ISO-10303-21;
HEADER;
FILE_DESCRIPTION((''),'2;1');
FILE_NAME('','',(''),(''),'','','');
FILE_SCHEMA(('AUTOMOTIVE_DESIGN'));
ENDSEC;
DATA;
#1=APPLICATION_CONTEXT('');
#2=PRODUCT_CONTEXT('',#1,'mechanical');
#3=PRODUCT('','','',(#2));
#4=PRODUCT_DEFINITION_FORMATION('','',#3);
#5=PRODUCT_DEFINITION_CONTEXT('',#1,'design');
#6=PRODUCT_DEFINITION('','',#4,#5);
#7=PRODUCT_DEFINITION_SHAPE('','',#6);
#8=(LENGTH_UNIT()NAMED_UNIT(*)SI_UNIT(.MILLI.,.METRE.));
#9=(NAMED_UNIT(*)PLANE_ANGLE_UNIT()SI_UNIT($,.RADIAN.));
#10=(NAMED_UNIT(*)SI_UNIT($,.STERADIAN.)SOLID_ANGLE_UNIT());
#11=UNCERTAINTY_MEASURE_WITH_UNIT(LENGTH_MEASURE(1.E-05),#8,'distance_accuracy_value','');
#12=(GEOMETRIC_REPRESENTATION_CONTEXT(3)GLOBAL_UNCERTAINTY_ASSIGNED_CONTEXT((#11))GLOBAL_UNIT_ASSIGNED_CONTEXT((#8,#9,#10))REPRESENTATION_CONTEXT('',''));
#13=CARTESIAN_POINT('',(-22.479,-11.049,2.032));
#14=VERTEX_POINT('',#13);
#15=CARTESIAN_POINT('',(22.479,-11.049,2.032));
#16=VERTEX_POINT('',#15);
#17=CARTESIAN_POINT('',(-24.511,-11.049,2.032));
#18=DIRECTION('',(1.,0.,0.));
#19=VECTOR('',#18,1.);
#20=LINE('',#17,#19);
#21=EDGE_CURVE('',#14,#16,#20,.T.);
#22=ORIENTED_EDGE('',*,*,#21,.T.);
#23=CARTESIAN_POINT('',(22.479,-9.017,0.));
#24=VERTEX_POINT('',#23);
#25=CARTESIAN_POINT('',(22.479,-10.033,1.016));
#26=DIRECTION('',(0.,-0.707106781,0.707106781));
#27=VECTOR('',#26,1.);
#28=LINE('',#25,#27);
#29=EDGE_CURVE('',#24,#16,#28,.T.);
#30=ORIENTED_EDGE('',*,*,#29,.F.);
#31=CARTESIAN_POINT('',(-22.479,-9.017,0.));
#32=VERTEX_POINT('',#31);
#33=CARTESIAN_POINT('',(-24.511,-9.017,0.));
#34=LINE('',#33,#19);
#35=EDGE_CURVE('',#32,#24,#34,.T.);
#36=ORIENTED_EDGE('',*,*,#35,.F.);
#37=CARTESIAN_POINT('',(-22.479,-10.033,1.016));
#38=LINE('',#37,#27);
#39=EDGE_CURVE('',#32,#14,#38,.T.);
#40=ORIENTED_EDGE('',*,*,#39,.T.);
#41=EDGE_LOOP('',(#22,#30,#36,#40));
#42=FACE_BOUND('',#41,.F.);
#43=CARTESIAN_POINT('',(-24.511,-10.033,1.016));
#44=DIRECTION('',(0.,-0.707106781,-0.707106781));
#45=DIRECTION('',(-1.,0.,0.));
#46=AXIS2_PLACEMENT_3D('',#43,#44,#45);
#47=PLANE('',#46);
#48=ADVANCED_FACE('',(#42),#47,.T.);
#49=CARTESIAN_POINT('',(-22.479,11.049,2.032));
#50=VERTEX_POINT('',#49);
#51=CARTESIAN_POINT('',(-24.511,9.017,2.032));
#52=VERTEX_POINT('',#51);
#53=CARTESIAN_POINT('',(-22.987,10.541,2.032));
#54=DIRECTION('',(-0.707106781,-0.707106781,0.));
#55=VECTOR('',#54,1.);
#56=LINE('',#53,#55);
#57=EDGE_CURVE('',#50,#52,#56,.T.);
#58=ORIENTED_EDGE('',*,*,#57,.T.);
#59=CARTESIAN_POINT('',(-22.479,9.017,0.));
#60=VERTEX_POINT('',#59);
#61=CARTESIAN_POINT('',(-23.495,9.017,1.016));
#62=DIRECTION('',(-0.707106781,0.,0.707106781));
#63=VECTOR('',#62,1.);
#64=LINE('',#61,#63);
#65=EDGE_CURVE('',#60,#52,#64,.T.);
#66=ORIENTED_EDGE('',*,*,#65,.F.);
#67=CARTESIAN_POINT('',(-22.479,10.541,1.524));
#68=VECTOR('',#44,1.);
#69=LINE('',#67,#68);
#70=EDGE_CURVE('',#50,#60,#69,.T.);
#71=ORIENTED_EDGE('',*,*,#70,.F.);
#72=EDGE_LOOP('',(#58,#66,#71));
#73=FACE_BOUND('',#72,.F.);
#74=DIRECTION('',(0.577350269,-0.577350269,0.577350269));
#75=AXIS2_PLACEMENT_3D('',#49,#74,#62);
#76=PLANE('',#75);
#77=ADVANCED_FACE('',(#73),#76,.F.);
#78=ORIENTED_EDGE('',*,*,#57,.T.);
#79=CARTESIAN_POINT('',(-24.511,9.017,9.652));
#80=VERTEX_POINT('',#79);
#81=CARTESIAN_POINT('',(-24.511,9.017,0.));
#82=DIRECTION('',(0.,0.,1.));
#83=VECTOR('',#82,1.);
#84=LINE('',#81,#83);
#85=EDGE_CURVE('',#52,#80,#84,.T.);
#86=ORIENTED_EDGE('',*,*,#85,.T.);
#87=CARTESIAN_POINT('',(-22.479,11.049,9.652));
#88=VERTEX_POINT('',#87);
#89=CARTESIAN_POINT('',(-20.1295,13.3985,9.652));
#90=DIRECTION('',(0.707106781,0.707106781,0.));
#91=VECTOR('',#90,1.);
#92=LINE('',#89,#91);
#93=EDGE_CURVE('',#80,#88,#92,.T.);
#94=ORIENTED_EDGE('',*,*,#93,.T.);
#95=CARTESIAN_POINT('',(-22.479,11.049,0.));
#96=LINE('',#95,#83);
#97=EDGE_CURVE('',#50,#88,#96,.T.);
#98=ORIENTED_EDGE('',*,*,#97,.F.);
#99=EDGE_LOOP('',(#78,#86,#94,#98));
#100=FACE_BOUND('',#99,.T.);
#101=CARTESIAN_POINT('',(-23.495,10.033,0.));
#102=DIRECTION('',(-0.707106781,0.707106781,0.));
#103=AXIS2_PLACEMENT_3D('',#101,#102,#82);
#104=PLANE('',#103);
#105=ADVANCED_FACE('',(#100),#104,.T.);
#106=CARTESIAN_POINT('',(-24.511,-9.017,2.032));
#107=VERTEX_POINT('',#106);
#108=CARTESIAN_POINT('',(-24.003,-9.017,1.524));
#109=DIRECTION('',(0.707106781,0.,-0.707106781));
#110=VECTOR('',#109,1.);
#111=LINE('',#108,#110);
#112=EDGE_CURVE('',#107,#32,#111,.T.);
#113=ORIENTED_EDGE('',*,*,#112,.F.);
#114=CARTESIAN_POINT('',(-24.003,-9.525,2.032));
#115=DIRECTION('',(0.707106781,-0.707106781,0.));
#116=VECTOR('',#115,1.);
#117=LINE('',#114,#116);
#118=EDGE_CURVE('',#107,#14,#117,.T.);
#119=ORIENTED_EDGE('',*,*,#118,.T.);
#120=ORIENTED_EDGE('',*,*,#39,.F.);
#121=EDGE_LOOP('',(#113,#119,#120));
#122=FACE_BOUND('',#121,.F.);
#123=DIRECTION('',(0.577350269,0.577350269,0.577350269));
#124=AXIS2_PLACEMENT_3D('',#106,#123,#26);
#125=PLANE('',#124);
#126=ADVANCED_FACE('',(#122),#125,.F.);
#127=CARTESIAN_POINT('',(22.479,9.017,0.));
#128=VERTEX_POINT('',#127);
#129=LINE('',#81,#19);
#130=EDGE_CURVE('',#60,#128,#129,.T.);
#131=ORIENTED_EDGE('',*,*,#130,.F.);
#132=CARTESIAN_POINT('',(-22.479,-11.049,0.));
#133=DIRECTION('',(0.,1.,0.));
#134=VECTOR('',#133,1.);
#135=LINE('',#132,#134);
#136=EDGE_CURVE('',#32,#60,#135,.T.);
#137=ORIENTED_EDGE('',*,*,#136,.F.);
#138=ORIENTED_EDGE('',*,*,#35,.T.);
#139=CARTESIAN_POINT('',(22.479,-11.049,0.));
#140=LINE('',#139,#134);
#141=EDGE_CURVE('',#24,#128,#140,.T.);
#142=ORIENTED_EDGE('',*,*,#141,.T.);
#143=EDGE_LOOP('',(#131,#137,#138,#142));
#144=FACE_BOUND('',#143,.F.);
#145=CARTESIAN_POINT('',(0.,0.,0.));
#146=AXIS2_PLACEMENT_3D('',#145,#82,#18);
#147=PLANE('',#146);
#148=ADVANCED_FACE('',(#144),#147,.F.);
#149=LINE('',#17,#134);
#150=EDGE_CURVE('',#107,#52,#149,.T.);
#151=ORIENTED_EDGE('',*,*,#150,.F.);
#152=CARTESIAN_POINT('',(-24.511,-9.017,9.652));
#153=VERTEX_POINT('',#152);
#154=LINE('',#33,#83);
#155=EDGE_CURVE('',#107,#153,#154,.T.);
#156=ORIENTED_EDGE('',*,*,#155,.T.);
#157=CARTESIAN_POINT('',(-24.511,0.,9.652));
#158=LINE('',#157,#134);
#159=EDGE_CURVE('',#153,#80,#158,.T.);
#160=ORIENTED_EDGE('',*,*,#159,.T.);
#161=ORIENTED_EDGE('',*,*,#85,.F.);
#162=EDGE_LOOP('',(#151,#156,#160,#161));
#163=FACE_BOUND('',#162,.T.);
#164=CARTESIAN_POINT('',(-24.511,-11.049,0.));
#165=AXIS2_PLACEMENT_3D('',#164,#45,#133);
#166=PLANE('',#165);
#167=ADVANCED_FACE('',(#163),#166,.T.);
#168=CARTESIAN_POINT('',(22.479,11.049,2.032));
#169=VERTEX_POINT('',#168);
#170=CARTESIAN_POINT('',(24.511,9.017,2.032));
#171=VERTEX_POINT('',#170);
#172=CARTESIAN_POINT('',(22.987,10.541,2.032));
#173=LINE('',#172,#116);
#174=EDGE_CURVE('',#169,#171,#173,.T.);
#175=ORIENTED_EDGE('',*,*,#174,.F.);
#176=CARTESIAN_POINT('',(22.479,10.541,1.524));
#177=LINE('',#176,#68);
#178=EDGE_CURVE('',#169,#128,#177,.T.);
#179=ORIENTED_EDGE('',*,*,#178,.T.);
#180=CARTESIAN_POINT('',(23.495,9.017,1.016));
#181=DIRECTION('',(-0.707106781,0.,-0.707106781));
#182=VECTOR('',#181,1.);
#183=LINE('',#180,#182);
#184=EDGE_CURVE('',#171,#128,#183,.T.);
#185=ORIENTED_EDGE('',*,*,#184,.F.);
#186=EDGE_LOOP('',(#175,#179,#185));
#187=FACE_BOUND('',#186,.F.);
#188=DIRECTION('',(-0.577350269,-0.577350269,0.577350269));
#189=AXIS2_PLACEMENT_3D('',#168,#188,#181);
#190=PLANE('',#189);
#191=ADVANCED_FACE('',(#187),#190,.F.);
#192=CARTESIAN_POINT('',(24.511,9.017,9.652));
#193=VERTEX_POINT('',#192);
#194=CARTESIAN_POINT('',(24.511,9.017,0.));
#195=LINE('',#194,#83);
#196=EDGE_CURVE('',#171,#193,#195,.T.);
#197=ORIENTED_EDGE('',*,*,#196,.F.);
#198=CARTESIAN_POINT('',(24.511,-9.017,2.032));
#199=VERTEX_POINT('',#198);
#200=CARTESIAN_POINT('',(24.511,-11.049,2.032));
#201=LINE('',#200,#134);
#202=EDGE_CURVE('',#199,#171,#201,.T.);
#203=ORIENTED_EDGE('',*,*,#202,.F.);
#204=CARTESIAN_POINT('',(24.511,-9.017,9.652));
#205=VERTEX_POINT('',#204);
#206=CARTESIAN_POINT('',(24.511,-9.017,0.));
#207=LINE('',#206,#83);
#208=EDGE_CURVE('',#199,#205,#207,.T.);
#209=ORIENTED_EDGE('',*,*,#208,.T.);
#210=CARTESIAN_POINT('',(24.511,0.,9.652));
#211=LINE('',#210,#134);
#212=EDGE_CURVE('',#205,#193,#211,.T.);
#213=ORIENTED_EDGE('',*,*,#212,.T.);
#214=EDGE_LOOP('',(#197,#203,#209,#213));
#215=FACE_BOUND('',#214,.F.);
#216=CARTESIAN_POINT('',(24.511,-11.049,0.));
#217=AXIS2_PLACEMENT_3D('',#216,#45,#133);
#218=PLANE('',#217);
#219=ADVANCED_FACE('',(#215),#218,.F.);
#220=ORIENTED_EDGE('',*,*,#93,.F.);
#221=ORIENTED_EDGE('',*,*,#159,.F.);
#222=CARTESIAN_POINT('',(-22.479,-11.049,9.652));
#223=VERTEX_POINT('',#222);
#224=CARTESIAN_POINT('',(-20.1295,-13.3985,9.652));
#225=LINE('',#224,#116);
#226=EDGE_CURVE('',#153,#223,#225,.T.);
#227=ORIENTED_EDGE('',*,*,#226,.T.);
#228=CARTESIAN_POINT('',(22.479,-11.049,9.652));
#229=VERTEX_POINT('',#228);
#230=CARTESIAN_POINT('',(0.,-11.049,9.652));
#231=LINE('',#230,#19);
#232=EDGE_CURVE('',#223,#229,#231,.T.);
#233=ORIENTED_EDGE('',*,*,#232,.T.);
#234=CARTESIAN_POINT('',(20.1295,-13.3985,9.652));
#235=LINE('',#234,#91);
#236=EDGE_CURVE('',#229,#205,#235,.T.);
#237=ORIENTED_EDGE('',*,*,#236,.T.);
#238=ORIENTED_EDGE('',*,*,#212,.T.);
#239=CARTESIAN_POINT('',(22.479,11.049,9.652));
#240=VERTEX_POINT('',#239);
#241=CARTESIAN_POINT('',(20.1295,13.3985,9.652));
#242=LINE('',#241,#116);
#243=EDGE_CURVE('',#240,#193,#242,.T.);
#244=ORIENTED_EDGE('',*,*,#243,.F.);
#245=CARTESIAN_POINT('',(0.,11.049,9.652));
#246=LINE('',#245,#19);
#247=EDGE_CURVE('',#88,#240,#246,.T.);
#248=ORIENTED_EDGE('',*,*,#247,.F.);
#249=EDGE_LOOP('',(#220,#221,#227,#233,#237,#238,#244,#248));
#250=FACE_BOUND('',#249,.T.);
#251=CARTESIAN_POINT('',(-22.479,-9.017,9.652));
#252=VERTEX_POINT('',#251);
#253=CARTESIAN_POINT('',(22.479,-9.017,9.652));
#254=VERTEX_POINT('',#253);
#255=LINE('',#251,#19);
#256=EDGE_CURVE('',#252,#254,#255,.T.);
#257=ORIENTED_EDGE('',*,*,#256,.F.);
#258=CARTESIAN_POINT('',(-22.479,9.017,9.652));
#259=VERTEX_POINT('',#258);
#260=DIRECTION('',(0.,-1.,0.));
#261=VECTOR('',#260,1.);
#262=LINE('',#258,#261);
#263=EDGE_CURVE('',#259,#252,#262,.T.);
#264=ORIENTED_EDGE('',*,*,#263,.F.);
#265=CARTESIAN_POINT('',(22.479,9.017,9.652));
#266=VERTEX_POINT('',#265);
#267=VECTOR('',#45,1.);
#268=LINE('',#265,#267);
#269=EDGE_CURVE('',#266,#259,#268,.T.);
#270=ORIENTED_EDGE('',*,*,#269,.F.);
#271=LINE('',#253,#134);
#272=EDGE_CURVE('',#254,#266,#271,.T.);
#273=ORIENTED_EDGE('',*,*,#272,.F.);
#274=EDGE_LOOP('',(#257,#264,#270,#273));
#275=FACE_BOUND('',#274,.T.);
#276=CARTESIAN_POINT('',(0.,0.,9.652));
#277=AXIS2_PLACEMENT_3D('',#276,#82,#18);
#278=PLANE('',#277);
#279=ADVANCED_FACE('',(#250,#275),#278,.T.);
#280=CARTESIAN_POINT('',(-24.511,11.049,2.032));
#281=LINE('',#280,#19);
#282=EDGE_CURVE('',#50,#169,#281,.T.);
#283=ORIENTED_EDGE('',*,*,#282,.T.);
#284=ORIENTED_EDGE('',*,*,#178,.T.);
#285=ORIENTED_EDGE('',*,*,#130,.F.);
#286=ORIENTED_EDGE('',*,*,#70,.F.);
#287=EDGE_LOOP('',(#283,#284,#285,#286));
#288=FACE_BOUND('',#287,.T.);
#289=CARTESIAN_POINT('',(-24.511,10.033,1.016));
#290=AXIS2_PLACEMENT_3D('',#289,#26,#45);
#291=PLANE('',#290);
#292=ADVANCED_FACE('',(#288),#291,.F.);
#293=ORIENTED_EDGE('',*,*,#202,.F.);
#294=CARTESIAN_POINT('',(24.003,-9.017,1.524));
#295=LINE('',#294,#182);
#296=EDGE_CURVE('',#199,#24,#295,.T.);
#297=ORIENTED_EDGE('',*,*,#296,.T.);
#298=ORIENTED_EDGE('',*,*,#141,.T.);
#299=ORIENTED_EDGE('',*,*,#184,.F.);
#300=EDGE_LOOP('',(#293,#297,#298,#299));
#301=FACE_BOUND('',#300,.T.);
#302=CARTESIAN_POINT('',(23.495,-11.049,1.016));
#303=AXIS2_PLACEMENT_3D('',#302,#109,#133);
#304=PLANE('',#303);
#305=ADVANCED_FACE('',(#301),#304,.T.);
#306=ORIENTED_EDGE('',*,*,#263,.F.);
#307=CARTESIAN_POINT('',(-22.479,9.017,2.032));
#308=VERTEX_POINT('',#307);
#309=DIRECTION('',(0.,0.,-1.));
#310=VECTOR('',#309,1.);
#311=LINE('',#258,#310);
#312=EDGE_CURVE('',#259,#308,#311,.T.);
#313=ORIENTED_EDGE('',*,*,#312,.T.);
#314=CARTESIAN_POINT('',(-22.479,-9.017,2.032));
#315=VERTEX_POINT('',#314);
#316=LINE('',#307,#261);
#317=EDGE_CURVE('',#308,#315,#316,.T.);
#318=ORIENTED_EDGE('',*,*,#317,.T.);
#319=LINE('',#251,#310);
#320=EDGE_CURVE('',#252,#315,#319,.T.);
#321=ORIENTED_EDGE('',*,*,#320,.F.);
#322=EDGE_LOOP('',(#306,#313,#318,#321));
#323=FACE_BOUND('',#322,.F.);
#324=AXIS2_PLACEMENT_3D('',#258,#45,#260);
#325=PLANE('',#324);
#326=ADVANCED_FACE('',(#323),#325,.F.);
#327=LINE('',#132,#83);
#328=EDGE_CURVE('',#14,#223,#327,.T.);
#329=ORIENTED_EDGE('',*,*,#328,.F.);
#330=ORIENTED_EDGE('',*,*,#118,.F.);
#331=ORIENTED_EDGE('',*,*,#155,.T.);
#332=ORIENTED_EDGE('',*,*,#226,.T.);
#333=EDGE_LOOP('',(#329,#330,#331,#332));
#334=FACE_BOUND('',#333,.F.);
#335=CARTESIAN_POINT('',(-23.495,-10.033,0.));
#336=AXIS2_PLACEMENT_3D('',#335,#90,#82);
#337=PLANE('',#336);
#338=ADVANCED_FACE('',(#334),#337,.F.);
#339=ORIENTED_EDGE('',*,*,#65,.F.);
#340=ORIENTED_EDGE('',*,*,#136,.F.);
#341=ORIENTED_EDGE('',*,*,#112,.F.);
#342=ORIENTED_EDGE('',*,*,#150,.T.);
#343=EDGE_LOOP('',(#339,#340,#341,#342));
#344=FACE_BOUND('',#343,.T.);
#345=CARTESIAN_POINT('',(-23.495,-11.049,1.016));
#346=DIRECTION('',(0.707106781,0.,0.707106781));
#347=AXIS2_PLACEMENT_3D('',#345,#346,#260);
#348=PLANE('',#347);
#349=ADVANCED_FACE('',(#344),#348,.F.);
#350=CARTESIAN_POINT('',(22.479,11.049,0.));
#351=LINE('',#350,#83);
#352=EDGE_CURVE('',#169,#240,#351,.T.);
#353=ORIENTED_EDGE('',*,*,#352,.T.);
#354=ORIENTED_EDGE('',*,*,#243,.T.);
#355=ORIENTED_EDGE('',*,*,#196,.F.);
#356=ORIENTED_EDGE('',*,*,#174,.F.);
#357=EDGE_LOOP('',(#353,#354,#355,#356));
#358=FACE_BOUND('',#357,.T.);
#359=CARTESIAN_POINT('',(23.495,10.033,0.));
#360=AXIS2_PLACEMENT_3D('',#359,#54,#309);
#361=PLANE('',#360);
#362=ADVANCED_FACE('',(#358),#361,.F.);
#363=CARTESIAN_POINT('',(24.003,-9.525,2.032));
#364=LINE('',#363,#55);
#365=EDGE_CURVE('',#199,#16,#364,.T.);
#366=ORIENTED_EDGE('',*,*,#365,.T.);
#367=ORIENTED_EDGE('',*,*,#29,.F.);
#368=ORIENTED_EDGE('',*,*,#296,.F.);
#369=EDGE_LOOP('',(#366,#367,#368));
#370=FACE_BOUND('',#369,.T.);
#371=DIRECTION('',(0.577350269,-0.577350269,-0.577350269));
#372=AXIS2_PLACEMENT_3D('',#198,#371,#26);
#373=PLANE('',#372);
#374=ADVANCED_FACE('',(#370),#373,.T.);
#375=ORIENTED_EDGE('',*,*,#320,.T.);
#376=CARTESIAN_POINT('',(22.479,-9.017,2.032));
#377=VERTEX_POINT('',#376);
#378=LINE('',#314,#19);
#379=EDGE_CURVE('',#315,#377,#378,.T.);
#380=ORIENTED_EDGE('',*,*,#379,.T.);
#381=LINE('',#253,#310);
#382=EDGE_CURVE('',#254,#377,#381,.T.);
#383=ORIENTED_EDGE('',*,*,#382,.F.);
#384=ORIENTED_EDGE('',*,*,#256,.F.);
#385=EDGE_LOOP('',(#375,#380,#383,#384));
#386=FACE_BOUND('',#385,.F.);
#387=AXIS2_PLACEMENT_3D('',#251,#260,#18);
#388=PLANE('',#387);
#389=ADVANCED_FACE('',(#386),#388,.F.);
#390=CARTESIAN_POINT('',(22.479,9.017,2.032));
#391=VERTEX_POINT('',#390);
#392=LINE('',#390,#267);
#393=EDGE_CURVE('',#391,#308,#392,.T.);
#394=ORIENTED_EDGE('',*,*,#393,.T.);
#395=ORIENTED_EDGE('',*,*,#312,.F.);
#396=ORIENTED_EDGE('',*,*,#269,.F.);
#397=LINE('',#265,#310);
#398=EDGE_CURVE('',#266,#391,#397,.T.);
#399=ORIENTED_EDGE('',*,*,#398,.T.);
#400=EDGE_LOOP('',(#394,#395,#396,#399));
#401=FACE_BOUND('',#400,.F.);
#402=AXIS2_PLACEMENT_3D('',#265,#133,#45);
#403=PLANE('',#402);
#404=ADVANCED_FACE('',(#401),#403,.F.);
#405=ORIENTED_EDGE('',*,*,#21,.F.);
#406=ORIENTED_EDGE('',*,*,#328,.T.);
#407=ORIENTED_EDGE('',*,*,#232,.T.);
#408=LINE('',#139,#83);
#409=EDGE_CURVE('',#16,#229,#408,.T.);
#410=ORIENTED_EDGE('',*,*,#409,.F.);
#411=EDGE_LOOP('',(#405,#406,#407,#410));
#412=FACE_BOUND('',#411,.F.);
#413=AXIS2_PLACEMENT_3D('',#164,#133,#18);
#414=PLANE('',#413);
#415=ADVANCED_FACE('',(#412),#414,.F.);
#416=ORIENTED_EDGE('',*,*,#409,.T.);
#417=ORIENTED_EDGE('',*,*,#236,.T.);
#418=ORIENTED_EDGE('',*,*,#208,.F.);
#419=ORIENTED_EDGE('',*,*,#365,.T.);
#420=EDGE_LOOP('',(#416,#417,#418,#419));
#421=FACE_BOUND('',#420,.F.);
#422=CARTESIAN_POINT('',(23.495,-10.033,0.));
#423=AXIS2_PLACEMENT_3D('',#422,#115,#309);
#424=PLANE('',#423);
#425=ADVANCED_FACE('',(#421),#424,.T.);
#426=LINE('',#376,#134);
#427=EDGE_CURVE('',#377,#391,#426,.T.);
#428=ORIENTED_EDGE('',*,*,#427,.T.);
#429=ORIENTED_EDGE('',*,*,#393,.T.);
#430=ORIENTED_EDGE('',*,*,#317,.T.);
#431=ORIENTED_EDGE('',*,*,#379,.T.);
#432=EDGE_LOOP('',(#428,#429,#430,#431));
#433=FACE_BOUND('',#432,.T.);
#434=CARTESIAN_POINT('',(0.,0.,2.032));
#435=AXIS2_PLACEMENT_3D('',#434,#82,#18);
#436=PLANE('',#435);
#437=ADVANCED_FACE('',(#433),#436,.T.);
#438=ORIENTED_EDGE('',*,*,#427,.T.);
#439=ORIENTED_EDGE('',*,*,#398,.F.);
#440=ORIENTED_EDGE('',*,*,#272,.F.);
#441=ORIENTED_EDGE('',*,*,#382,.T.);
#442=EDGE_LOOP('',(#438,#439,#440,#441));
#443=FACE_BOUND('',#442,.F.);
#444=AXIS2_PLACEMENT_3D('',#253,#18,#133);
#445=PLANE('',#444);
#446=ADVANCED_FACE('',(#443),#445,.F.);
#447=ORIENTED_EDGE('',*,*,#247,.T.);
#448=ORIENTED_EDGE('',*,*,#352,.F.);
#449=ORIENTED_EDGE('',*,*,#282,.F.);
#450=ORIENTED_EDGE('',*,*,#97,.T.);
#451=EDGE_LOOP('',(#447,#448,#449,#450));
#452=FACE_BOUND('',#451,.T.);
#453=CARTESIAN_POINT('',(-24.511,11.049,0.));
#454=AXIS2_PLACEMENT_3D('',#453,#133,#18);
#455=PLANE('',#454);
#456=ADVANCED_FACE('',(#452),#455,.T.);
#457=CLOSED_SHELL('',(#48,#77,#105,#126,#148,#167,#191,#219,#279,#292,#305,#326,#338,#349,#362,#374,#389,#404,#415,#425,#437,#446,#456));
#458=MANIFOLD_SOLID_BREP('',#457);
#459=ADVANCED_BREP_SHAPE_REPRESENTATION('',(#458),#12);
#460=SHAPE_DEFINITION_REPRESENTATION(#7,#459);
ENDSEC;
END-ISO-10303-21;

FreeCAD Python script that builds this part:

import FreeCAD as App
import Part
import Sketcher
Q = App.Units.Quantity


def edges_at(feature, points):
    """Names of the edges that pass closest to the given points."""
    edges = feature.Shape.Edges
    near = lambda p: min(range(len(edges)), key=lambda i: edges[i].distToShape(Part.Vertex(*p))[0])
    return sorted({f"Edge{near(p) + 1}" for p in points})

doc = App.newDocument("Part")
params = doc.addObject("Spreadsheet::Sheet", "Params")
for row, (alias, value) in enumerate([
    ("sketch1_width", "1.93 in"),
    ("sketch1_height", "0.87 in"),
    ("pad1_length", "0.38 in"),
    ("sketch2_width", "1.77 in"),
    ("sketch2_height", "0.71 in"),
    ("pocket1_length", "0.3 in"),
    ("chamfer_size", "0.08 in"),
], start=1):
    params.set(f"A{row}", alias)
    params.set(f"B{row}", "=" + value)
    params.setAlias(f"B{row}", alias)

body = doc.addObject("PartDesign::Body", "Body")

# Sketch on XY plane
sketch1 = body.newObject("Sketcher::SketchObject", "Sketch")
sketch1.AttachmentSupport = (doc.getObject("XY_Plane"), [""])
sketch1.MapMode = "FlatFace"
sketch1.addGeometry(Part.LineSegment(App.Vector(-24.511, 11.049, 0), App.Vector(-24.511, -11.049, 0)), False)
sketch1.addGeometry(Part.LineSegment(App.Vector(-24.511, -11.049, 0), App.Vector(24.511, -11.049, 0)), False)
sketch1.addGeometry(Part.LineSegment(App.Vector(24.511, -11.049, 0), App.Vector(24.511, 11.049, 0)), False)
sketch1.addGeometry(Part.LineSegment(App.Vector(24.511, 11.049, 0), App.Vector(-24.511, 11.049, 0)), False)
sketch1.addConstraint(Sketcher.Constraint("Coincident", 0, 2, 1, 1))
sketch1.addConstraint(Sketcher.Constraint("Coincident", 1, 2, 2, 1))
sketch1.addConstraint(Sketcher.Constraint("Coincident", 2, 2, 3, 1))
sketch1.addConstraint(Sketcher.Constraint("Coincident", 3, 2, 0, 1))
sketch1.addConstraint(Sketcher.Constraint("Vertical", 0))
sketch1.addConstraint(Sketcher.Constraint("Horizontal", 1))
sketch1.addConstraint(Sketcher.Constraint("Vertical", 2))
sketch1.addConstraint(Sketcher.Constraint("Horizontal", 3))
sketch1.addConstraint(Sketcher.Constraint("Symmetric", 0, 2, 2, 2, -1, 1))
sketch1.addConstraint(Sketcher.Constraint("DistanceX", 1, 1, 1, 2, Q("1.93 in")))
sketch1.addConstraint(Sketcher.Constraint("DistanceY", 0, 2, 0, 1, Q("0.87 in")))
sketch1.setExpression("Constraints[9]", "Params.sketch1_width")
sketch1.setExpression("Constraints[10]", "Params.sketch1_height")
pad1 = body.newObject("PartDesign::Pad", "Pad")
pad1.Profile = sketch1
pad1.setExpression("Length", "Params.pad1_length")

# Sketch on XY plane
sketch2 = body.newObject("Sketcher::SketchObject", "Sketch001")
sketch2.AttachmentSupport = (doc.getObject("XY_Plane"), [""])
sketch2.MapMode = "FlatFace"
sketch2.AttachmentOffset = App.Placement(App.Vector(0, 0, 0.38 * 25.4), App.Rotation())
sketch2.addGeometry(Part.LineSegment(App.Vector(22.479, 9.017, 0), App.Vector(-22.479, 9.017, 0)), False)
sketch2.addGeometry(Part.LineSegment(App.Vector(-22.479, 9.017, 0), App.Vector(-22.479, -9.017, 0)), False)
sketch2.addGeometry(Part.LineSegment(App.Vector(-22.479, -9.017, 0), App.Vector(22.479, -9.017, 0)), False)
sketch2.addGeometry(Part.LineSegment(App.Vector(22.479, -9.017, 0), App.Vector(22.479, 9.017, 0)), False)
sketch2.addConstraint(Sketcher.Constraint("Coincident", 0, 2, 1, 1))
sketch2.addConstraint(Sketcher.Constraint("Coincident", 1, 2, 2, 1))
sketch2.addConstraint(Sketcher.Constraint("Coincident", 2, 2, 3, 1))
sketch2.addConstraint(Sketcher.Constraint("Coincident", 3, 2, 0, 1))
sketch2.addConstraint(Sketcher.Constraint("Horizontal", 0))
sketch2.addConstraint(Sketcher.Constraint("Vertical", 1))
sketch2.addConstraint(Sketcher.Constraint("Horizontal", 2))
sketch2.addConstraint(Sketcher.Constraint("Vertical", 3))
sketch2.addConstraint(Sketcher.Constraint("Symmetric", 0, 2, 2, 2, -1, 1))
sketch2.addConstraint(Sketcher.Constraint("DistanceX", 0, 2, 0, 1, Q("1.77 in")))
sketch2.addConstraint(Sketcher.Constraint("DistanceY", 1, 2, 1, 1, Q("0.71 in")))
sketch2.setExpression("Constraints[9]", "Params.sketch2_width")
sketch2.setExpression("Constraints[10]", "Params.sketch2_height")
pocket1 = body.newObject("PartDesign::Pocket", "Pocket")
pocket1.Profile = sketch2
pocket1.setExpression("Length", "Params.pocket1_length")
doc.recompute()

chamfer = body.newObject("PartDesign::Chamfer", "Chamfer")
chamfer.Base = (pocket1, edges_at(pocket1, [
    (0, -11.049, 0),
    (24.511, 0, 0),
    (24.511, -11.049, 4.826),
    (24.511, 11.049, 4.826),
    (-24.511, 0, 0),
    (0, 11.049, 0),
    (-24.511, -11.049, 4.826),
    (-24.511, 11.049, 4.826),
]))
chamfer.setExpression("Size", "Params.chamfer_size")

doc.recompute()
